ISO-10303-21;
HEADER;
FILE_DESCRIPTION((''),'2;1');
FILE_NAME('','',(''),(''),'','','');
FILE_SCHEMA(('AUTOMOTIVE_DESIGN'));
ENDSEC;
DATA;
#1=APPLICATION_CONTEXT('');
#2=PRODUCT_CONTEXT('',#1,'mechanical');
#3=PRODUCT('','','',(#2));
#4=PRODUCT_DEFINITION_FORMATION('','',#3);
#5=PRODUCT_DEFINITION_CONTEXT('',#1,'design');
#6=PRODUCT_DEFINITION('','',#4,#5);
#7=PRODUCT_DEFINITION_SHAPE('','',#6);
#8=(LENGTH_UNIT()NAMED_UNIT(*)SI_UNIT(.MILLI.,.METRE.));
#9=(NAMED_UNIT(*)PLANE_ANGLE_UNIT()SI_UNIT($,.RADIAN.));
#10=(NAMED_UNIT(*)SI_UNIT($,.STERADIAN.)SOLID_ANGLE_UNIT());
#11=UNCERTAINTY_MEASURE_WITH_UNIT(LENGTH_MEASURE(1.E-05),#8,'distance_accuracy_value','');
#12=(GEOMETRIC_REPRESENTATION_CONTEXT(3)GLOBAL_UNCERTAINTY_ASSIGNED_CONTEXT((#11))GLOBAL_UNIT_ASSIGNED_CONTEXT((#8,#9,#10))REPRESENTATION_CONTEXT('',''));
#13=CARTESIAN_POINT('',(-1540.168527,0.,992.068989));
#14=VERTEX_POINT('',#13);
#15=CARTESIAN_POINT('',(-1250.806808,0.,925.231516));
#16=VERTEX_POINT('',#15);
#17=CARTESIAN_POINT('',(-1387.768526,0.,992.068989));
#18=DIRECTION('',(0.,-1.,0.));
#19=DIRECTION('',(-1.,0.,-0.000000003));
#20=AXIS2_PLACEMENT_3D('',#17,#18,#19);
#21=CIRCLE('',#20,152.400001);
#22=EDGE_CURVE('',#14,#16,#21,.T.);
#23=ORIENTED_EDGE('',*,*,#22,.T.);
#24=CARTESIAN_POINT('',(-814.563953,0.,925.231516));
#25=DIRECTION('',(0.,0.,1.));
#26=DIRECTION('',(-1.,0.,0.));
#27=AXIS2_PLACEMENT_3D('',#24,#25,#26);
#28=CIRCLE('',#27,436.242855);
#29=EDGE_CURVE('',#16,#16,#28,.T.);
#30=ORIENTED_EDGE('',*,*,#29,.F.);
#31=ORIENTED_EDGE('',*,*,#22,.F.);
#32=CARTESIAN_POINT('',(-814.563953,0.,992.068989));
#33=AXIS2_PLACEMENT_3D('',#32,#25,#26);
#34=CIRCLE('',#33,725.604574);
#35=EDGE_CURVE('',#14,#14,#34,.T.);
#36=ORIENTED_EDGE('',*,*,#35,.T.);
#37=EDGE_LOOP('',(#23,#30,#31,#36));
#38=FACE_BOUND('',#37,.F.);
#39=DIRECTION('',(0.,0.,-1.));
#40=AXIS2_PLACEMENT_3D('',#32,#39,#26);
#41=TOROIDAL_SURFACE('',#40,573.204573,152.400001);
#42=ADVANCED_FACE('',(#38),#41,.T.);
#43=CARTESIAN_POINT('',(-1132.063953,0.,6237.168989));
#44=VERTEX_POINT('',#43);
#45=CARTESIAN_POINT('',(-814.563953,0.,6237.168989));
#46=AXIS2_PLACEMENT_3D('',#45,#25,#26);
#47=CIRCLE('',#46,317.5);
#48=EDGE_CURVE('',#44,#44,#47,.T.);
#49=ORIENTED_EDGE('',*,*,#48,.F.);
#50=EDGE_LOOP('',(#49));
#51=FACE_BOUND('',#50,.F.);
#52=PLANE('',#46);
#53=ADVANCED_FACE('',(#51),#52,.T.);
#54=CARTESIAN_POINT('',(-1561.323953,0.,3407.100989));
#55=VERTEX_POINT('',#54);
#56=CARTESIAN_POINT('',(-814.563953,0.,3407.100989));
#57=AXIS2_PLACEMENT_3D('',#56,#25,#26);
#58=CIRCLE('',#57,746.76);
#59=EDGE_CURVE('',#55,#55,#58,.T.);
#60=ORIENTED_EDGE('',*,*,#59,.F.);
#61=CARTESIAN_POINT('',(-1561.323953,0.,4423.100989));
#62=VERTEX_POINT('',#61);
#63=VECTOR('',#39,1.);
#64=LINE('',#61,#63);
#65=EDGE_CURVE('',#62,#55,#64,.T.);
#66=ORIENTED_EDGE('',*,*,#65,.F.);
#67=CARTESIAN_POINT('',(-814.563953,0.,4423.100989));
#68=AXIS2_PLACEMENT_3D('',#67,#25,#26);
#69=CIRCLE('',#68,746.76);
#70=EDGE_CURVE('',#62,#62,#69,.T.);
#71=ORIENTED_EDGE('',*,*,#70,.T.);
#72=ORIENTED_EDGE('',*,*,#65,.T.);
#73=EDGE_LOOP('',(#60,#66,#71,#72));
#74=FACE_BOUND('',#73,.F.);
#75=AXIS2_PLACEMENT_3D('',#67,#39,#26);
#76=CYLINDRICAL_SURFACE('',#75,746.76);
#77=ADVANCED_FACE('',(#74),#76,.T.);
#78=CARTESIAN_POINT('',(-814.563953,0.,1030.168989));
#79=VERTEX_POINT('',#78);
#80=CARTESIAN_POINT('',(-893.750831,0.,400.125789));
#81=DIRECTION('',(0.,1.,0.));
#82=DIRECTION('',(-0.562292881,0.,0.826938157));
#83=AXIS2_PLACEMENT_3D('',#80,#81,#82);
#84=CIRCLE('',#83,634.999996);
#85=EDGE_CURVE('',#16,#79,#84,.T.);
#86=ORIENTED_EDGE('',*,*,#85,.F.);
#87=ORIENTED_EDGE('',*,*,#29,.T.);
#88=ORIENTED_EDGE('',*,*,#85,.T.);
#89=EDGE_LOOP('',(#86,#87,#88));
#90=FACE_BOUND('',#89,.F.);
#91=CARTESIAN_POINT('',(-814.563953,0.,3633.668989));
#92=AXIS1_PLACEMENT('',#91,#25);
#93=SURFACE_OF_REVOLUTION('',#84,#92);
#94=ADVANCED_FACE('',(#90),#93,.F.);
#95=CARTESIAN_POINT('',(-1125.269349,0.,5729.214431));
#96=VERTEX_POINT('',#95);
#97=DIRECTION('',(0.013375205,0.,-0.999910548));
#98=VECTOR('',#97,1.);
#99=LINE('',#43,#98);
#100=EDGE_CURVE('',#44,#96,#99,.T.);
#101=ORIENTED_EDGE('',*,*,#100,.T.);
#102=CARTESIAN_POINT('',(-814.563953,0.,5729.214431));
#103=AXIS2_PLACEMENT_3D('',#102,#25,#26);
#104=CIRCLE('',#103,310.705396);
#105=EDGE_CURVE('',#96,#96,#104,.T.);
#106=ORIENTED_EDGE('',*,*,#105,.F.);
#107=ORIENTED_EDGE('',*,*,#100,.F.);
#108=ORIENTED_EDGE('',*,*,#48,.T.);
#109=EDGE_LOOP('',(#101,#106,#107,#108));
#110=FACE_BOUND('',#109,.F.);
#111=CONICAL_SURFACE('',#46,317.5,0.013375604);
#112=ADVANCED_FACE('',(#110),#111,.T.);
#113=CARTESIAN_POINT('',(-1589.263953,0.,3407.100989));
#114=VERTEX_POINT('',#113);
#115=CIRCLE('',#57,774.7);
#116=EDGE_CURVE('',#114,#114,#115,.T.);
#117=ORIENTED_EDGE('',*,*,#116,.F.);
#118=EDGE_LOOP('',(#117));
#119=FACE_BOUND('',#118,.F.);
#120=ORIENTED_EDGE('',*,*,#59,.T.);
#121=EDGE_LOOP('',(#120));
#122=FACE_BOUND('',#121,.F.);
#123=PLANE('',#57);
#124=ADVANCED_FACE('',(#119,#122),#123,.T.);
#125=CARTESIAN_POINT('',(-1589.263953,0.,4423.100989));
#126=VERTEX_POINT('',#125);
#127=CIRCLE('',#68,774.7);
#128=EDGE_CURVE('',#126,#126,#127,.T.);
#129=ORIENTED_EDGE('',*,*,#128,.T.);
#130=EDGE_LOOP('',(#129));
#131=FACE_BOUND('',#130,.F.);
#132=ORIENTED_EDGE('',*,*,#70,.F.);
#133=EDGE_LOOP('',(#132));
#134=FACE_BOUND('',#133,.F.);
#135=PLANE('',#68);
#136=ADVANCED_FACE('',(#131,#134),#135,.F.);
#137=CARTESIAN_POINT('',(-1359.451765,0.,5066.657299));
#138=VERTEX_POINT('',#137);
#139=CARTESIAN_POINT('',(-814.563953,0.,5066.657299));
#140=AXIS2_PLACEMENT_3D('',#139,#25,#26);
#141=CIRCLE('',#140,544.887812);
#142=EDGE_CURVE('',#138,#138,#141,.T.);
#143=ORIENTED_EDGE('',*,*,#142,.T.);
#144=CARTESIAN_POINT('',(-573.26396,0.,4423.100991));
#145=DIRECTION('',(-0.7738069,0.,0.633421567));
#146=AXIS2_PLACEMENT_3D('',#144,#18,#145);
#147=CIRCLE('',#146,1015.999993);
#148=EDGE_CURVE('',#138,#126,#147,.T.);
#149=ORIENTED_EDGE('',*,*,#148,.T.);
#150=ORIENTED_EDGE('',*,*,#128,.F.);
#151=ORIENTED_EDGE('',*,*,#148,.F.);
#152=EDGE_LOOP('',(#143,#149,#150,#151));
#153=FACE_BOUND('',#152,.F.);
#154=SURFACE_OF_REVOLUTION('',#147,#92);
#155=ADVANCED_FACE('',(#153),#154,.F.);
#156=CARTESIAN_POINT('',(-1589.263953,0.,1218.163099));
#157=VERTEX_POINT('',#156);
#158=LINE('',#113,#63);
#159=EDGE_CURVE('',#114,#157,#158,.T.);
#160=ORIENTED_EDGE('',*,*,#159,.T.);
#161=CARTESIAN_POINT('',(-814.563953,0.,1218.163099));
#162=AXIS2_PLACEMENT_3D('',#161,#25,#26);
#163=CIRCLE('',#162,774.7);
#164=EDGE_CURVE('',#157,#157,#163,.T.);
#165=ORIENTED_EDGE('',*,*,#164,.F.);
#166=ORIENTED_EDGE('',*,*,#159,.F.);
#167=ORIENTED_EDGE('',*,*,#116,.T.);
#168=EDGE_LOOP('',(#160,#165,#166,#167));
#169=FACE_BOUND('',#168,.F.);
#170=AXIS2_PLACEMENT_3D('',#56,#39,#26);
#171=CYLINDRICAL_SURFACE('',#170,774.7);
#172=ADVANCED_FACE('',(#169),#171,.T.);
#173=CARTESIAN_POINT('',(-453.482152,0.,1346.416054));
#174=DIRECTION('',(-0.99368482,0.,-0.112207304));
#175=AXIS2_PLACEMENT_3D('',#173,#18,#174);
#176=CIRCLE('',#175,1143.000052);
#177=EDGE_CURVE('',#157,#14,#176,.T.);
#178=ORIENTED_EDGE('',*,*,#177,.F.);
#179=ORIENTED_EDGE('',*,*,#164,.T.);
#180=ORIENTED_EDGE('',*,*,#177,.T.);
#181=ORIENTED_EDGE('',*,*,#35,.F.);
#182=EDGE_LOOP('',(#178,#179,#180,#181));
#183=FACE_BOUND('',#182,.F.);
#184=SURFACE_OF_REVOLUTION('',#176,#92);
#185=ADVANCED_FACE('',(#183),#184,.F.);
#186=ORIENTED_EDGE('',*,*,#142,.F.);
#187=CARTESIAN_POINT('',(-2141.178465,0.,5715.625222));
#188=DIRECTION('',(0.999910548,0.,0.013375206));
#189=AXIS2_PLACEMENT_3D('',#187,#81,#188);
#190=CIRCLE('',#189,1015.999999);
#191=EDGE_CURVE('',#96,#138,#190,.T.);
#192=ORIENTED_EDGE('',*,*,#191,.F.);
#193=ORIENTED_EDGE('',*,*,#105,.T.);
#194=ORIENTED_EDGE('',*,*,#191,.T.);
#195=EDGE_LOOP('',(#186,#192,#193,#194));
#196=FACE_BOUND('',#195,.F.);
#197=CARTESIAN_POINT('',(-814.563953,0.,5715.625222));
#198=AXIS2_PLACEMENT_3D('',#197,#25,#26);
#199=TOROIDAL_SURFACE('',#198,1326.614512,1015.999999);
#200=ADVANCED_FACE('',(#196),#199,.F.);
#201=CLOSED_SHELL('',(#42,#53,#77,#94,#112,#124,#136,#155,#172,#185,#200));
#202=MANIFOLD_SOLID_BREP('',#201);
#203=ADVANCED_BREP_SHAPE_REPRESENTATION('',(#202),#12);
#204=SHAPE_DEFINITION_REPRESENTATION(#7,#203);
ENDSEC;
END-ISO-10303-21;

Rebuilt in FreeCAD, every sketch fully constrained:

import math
import FreeCAD as App
import Part
import Sketcher
Q = App.Units.Quantity

doc = App.newDocument("Part")
body = doc.addObject("PartDesign::Body", "Body")

sketch1 = body.newObject("Sketcher::SketchObject", "Sketch")
sketch1.AttachmentSupport = (doc.getObject("XZ_Plane"), [""])
sketch1.MapMode = "FlatFace"
sketch1.addGeometry([
    Part.ArcOfCircle(Part.Circle(App.Vector(-453, 1346, 0), App.Vector(0, 0, 1), 1143), math.radians(-173.56), math.radians(-161.94)),
    Part.ArcOfCircle(Part.Circle(App.Vector(-1388, 992, 0), App.Vector(0, 0, 1), 152), math.radians(-180), math.radians(-26)),
    Part.ArcOfCircle(Part.Circle(App.Vector(-894, 400, 0), App.Vector(0, 0, 1), 635), math.radians(83), math.radians(124)),
    Part.LineSegment(App.Vector(-815, 1030, 0), App.Vector(-815, 6237, 0)),
    Part.LineSegment(App.Vector(-815, 6237, 0), App.Vector(-1132, 6237, 0)),
    Part.LineSegment(App.Vector(-1132, 6237, 0), App.Vector(-1125, 5729, 0)),
    Part.ArcOfCircle(Part.Circle(App.Vector(-2141, 5716, 0), App.Vector(0, 0, 1), 1016), math.radians(-40), math.radians(1)),
    Part.ArcOfCircle(Part.Circle(App.Vector(-573, 4423, 0), App.Vector(0, 0, 1), 1016), math.radians(141), math.radians(180)),
    Part.LineSegment(App.Vector(-1589, 4423, 0), App.Vector(-1561, 4423, 0)),
    Part.LineSegment(App.Vector(-1561, 4423, 0), App.Vector(-1561, 3407, 0)),
    Part.LineSegment(App.Vector(-1561, 3407, 0), App.Vector(-1589, 3407, 0)),
    Part.LineSegment(App.Vector(-1589, 3407, 0), App.Vector(-1589, 1218, 0)),
], False)
sketch1.addGeometry(Part.LineSegment(App.Vector(-815, 400, 0), App.Vector(-815, 6237, 0)), True)
sketch1.addConstraint([
    Sketcher.Constraint("Coincident", 0, 2, 1, 1),
    Sketcher.Constraint("Coincident", 1, 2, 2, 2),
    Sketcher.Constraint("Coincident", 2, 1, 3, 1),
    Sketcher.Constraint("Coincident", 3, 2, 4, 1),
    Sketcher.Constraint("Coincident", 4, 2, 5, 1),
    Sketcher.Constraint("Tangent", 5, 2, 6, 2),
    Sketcher.Constraint("Coincident", 6, 1, 7, 1),
    Sketcher.Constraint("Coincident", 7, 2, 8, 1),
    Sketcher.Constraint("Coincident", 8, 2, 9, 1),
    Sketcher.Constraint("Coincident", 9, 2, 10, 1),
    Sketcher.Constraint("Coincident", 10, 2, 11, 1),
    Sketcher.Constraint("Coincident", 11, 2, 0, 1),
    Sketcher.Constraint("Vertical", 3),
    Sketcher.Constraint("Horizontal", 4),
    Sketcher.Constraint("Horizontal", 8),
    Sketcher.Constraint("Vertical", 9),
    Sketcher.Constraint("Horizontal", 10),
    Sketcher.Constraint("Vertical", 11),
    Sketcher.Constraint("Vertical", 12),
    Sketcher.Constraint("Coincident", 12, 2, 3, 2),
    Sketcher.Constraint("Horizontal", 1, 3, 0, 2),
    Sketcher.Constraint("Horizontal", 2, 3, 12, 1),
    Sketcher.Constraint("Vertical", 7, 2, 10, 2),
    Sketcher.Constraint("Radius", 1, Q("6 in")),
    Sketcher.Constraint("Radius", 2, Q("24.9999999 in")),
    Sketcher.Constraint("Radius", 6, Q("40 in")),
    Sketcher.Constraint("DistanceY", 3, 1, 3, 2, Q("205 in")),
    Sketcher.Constraint("DistanceY", 9, 2, 9, 1, Q("40 in")),
    Sketcher.Constraint("Distance", 5, Q("20 in")),
    Sketcher.Constraint("DistanceX", 4, 2, 4, 1, Q("12.5 in")),
    Sketcher.Constraint("DistanceX", 8, 1, 8, 2, Q("1.1 in")),
    Sketcher.Constraint("DistanceX", 7, 2, 4, 2, Q("18 in")),
    Sketcher.Constraint("DistanceY", 9, 2, 7, 3, Q("40.0000001 in")),
    Sketcher.Constraint("DistanceY", 1, 3, 2, 1, Q("1.5 in")),
    Sketcher.Constraint("DistanceY", 1, 3, 7, 3, Q("135.0800001 in")),
    Sketcher.Constraint("DistanceY", 12, 1, 12, 2, 5837.0432),
    Sketcher.Constraint("Radius", 0, 1143.000052),
    Sketcher.Constraint("Radius", 7, 1015.999993),
    Sketcher.Constraint("DistanceY", 11, 2, 11, 1, 2188.93789),
    Sketcher.Constraint("DistanceY", -1, 1, 6, 1, 5066.657299),
    Sketcher.Constraint("DistanceY", -1, 1, 11, 2, 1218.163099),
    Sketcher.Constraint("DistanceX", 3, 2, 0, 3, 361.081801),
    Sketcher.Constraint("DistanceX", 2, 3, -1, 1, 893.750831),
])
revolution = body.newObject("PartDesign::Revolution", "Revolution")
revolution.Profile = sketch1
revolution.ReferenceAxis = (sketch1, ["Axis0"])
revolution.Angle = 360

doc.recompute()
